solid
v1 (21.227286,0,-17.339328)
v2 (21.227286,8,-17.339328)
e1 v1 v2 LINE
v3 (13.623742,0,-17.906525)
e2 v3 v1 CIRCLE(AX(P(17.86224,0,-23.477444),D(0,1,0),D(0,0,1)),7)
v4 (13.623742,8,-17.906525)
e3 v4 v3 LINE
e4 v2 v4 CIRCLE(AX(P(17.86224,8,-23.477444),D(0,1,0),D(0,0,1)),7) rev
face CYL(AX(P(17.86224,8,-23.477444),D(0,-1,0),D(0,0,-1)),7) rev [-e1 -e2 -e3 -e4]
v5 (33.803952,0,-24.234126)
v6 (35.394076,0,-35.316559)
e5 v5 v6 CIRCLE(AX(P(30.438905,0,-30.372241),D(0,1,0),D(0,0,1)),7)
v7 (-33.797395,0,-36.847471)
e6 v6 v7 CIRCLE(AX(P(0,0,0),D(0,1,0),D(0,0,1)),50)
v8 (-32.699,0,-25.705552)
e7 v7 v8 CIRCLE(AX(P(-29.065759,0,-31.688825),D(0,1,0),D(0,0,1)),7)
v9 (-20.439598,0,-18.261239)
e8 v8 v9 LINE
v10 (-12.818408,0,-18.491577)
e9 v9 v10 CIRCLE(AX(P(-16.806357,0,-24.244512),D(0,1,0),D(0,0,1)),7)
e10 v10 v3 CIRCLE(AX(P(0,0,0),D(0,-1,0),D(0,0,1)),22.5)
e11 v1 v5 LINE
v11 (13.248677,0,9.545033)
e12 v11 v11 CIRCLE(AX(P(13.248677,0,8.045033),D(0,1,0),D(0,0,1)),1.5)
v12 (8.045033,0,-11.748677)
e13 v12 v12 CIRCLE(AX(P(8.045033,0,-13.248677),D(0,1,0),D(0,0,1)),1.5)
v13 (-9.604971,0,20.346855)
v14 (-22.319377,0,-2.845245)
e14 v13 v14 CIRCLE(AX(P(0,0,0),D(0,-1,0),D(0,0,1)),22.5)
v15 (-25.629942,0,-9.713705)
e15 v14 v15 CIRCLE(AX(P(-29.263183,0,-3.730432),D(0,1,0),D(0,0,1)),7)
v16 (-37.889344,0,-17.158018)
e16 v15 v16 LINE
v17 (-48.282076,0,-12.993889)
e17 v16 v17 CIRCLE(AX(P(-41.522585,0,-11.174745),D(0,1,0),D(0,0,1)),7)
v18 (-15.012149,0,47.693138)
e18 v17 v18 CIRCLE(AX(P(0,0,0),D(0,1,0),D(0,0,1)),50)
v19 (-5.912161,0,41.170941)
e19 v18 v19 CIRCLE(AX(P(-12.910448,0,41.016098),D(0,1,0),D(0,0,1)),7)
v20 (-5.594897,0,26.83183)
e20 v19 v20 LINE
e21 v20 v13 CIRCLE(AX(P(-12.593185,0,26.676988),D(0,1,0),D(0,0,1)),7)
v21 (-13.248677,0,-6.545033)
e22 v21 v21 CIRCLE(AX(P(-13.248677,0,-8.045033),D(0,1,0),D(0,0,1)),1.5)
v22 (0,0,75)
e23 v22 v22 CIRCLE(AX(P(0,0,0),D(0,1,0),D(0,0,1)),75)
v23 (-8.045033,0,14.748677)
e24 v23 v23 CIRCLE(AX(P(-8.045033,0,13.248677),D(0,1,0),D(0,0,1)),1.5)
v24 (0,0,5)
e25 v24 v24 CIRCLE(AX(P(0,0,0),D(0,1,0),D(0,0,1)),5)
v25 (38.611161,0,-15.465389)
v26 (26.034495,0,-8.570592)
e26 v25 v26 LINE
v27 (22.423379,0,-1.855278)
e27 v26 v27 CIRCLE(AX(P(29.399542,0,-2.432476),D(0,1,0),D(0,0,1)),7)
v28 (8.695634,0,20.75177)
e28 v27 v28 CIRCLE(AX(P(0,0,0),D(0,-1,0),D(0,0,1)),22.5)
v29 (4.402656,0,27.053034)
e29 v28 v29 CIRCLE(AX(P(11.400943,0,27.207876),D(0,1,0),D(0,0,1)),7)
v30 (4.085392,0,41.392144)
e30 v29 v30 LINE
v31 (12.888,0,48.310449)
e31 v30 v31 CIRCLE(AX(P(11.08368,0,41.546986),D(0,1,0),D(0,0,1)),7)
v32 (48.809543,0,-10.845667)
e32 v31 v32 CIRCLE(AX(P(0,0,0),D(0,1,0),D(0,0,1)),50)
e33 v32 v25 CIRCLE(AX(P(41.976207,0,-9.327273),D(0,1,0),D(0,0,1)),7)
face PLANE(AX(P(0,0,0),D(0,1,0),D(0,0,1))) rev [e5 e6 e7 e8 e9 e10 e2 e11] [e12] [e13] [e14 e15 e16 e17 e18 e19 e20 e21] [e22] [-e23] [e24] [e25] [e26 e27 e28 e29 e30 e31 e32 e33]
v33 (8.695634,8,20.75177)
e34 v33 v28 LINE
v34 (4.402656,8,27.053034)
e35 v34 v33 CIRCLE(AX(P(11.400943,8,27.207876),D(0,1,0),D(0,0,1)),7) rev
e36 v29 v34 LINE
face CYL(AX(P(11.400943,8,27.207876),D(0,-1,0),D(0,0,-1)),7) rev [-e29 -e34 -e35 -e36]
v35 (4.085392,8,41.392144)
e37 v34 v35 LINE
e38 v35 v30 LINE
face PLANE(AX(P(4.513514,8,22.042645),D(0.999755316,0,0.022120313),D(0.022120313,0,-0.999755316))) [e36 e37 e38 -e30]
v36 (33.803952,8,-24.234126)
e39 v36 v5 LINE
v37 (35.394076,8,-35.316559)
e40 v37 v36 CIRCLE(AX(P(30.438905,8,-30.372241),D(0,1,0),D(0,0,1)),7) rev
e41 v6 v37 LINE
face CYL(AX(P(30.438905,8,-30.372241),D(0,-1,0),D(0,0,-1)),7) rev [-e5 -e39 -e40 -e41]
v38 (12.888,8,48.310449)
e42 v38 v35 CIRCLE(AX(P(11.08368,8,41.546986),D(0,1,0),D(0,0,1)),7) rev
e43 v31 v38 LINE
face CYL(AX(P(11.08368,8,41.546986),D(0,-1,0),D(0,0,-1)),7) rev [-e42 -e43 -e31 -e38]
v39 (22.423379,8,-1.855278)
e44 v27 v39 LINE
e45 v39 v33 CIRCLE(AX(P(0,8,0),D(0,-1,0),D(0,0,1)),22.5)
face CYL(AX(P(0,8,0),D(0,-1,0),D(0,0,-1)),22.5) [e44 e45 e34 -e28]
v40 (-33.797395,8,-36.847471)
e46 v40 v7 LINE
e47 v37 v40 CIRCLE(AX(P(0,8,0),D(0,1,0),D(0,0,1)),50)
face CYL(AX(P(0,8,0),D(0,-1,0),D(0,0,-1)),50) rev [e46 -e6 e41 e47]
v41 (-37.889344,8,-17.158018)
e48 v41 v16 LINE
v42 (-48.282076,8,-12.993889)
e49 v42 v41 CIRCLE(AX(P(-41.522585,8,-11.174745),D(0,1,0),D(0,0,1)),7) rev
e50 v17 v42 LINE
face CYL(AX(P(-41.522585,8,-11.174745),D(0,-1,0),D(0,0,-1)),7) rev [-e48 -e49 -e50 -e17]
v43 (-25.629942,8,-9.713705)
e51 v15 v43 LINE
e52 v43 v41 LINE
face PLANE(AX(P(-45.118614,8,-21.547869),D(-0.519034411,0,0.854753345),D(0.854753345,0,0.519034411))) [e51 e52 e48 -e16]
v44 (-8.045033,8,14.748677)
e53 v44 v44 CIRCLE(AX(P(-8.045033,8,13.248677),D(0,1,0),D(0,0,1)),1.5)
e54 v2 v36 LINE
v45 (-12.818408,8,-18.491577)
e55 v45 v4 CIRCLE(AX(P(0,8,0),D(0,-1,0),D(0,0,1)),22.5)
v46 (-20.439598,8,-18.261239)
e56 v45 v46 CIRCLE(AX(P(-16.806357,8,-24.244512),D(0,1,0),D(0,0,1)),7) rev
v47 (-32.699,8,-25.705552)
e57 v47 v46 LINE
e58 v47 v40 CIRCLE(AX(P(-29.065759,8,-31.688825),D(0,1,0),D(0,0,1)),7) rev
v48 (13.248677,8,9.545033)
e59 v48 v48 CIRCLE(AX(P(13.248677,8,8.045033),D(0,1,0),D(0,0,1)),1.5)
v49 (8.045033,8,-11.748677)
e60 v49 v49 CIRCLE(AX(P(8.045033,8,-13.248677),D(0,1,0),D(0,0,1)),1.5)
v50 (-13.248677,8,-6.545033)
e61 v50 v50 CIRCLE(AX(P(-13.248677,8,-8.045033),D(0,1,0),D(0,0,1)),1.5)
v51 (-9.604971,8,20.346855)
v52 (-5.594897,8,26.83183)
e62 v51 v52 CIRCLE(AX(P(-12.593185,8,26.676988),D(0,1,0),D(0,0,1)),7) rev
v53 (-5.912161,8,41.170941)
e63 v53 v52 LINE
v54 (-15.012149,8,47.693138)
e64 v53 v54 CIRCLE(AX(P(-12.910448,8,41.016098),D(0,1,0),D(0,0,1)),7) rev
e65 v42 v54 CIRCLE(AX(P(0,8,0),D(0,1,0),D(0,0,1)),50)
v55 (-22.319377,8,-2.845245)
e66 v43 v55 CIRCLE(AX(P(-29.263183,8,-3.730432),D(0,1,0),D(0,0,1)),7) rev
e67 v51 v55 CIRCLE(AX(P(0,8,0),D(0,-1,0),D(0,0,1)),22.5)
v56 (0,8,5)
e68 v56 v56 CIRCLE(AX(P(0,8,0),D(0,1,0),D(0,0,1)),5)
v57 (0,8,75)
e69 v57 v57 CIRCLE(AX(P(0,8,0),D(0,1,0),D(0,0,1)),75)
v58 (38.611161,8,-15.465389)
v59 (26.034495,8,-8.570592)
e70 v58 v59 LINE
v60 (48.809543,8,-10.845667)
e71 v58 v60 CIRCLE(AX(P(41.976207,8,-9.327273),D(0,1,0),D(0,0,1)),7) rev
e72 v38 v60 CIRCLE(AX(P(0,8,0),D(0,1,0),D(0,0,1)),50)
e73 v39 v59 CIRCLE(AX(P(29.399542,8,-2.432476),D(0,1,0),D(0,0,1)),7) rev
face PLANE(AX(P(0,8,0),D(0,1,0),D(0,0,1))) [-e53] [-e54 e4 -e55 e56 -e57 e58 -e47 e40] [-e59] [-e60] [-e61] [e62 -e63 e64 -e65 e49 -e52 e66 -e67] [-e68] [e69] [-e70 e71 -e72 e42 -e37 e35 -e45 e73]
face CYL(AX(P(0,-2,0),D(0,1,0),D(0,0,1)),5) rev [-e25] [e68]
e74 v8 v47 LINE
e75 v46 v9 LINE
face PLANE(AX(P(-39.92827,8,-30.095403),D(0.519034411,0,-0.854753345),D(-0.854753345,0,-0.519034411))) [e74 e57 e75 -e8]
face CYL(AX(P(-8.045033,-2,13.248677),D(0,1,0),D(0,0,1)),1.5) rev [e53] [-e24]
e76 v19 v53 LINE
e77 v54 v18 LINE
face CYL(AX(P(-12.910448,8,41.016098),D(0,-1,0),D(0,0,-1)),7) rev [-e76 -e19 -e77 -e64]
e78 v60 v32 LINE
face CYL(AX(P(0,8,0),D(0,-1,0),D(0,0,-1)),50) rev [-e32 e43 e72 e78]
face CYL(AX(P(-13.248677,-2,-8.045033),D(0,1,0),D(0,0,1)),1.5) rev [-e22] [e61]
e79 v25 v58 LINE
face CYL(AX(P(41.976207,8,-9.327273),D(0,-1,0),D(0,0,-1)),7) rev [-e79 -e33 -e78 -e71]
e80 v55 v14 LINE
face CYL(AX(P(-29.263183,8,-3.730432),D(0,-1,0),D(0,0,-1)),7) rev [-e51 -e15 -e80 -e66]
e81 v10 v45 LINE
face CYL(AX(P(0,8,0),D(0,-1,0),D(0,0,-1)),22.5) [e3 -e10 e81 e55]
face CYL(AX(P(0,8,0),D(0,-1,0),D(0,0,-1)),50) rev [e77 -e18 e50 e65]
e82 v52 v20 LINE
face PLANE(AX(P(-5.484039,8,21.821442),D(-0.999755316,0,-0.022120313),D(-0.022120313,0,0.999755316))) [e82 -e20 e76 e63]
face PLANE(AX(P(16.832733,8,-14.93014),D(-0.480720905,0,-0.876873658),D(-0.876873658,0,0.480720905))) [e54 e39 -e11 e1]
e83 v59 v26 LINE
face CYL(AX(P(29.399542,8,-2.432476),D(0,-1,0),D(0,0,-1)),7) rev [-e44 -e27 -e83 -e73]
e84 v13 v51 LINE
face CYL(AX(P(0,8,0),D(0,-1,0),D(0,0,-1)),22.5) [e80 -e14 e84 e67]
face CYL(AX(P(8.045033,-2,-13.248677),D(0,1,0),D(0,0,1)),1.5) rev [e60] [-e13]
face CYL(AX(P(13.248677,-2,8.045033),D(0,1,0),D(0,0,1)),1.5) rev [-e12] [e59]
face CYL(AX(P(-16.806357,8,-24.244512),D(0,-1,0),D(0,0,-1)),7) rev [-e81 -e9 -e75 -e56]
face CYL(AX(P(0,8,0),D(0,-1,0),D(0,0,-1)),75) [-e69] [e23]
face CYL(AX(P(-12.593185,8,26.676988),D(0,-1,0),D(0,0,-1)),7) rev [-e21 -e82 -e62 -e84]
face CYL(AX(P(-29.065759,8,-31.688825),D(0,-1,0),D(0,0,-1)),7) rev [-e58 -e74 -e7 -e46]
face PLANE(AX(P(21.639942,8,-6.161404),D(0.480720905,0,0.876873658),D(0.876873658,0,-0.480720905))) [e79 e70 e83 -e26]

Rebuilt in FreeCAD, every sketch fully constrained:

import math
import FreeCAD as App
import Part
import Sketcher

V = App.Vector


def edges_at(feature, points):
    """Names of the edges that pass closest to the given points."""
    edges = feature.Shape.Edges
    near = lambda p: min(range(len(edges)), key=lambda i: edges[i].distToShape(Part.Vertex(*p))[0])
    return sorted({f"Edge{near(p) + 1}" for p in points})

doc = App.newDocument("Part")
params = doc.addObject("Spreadsheet::Sheet", "Params")
for row, (alias, value) in enumerate([
    ("sketch1_diameter", "150 mm"),
    ("sketch1_radius", "50 mm"),
    ("sketch1_radius2", "22.5 mm"),
    ("pad1_length", "8 mm"),
    ("fillet_radius", "7 mm"),
    ("fillet2_radius", "7 mm"),
    ("fillet3_radius", "7 mm"),
    ("sketch2_diameter", "10 mm"),
    ("pocket1_length", "10 mm"),
    ("sketch3_diameter", "3 mm"),
    ("pocket2_length", "10 mm"),
    ("fillet4_radius", "7 mm"),
], start=1):
    params.set(f"A{row}", alias)
    params.set(f"B{row}", "=" + value)
    params.setAlias(f"B{row}", alias)

body = doc.addObject("PartDesign::Body", "Body")

# Sketch on XZ plane
sketch1 = body.newObject("Sketcher::SketchObject", "Sketch")
sketch1.AttachmentSupport = (doc.getObject("XZ_Plane"), [""])
sketch1.MapMode = "FlatFace"
sketch1.addGeometry(Part.Circle(V(0, 0, 0), V(0, 0, 1), 75), False)
sketch1.addGeometry(Part.ArcOfCircle(Part.Circle(V(0, 0, 0), V(0, 0, 1), 22.5), math.radians(104.107092), math.radians(198.427916)), False)
sketch1.addGeometry(Part.LineSegment(V(-5.484039, 21.821442, 0), V(-6.099248, 49.626597, 0)), False)
sketch1.addGeometry(Part.ArcOfCircle(Part.Circle(V(0, 0, 0), V(0, 0, 1), 50), math.radians(97.006674), math.radians(205.528333)), False)
sketch1.addGeometry(Part.LineSegment(V(-45.118614, -21.547869, 0), V(-21.346247, -7.112504, 0)), False)
sketch1.addGeometry(Part.LineSegment(V(-16.155903, -15.660038, 0), V(-39.92827, -30.095403, 0)), False)
sketch1.addGeometry(Part.ArcOfCircle(Part.Circle(V(0, 0, 0), V(0, 0, 1), 50), math.radians(-142.993326), math.radians(-34.471667)), False)
sketch1.addGeometry(Part.LineSegment(V(41.220309, -28.299931, 0), V(16.832733, -14.93014, 0)), False)
sketch1.addGeometry(Part.ArcOfCircle(Part.Circle(V(0, 0, 0), V(0, 0, 1), 22.5), math.radians(-135.892908), math.radians(-41.572084)), False)
sketch1.addGeometry(Part.LineSegment(V(3.898305, 49.847801, 0), V(4.513514, 22.042645, 0)), False)
sketch1.addGeometry(Part.ArcOfCircle(Part.Circle(V(0, 0, 0), V(0, 0, 1), 22.5), math.radians(-15.892908), math.radians(78.427916)), False)
sketch1.addGeometry(Part.LineSegment(V(21.639942, -6.161404, 0), V(46.027518, -19.531195, 0)), False)
sketch1.addGeometry(Part.ArcOfCircle(Part.Circle(V(0, 0, 0), V(0, 0, 1), 50), math.radians(-22.993326), math.radians(85.528333)), False)
sketch1.addConstraint(Sketcher.Constraint("Coincident", 1, 1, 2, 1))
sketch1.addConstraint(Sketcher.Constraint("Coincident", 2, 2, 3, 1))
sketch1.addConstraint(Sketcher.Constraint("Coincident", 3, 2, 4, 1))
sketch1.addConstraint(Sketcher.Constraint("Coincident", 4, 2, 1, 2))
sketch1.addConstraint(Sketcher.Constraint("Coincident", 5, 2, 6, 1))
sketch1.addConstraint(Sketcher.Constraint("Coincident", 6, 2, 7, 1))
sketch1.addConstraint(Sketcher.Constraint("Coincident", 7, 2, 8, 2))
sketch1.addConstraint(Sketcher.Constraint("Coincident", 8, 1, 5, 1))
sketch1.addConstraint(Sketcher.Constraint("Coincident", 9, 2, 10, 2))
sketch1.addConstraint(Sketcher.Constraint("Coincident", 10, 1, 11, 1))
sketch1.addConstraint(Sketcher.Constraint("Coincident", 11, 2, 12, 1))
sketch1.addConstraint(Sketcher.Constraint("Coincident", 12, 2, 9, 1))
sketch1.addConstraint(Sketcher.Constraint("Coincident", 0, 3, -1, 1))
sketch1.addConstraint(Sketcher.Constraint("Coincident", 1, 3, -1, 1))
sketch1.addConstraint(Sketcher.Constraint("Coincident", 3, 3, -1, 1))
sketch1.addConstraint(Sketcher.Constraint("Coincident", 6, 3, -1, 1))
sketch1.addConstraint(Sketcher.Constraint("Coincident", 8, 3, -1, 1))
sketch1.addConstraint(Sketcher.Constraint("Coincident", 10, 3, -1, 1))
sketch1.addConstraint(Sketcher.Constraint("Coincident", 12, 3, -1, 1))
sketch1.addConstraint(Sketcher.Constraint("Equal", 3, 6))
sketch1.addConstraint(Sketcher.Constraint("Equal", 1, 8))
sketch1.addConstraint(Sketcher.Constraint("Equal", 8, 10))
sketch1.addConstraint(Sketcher.Constraint("Equal", 6, 12))
sketch1.addConstraint(Sketcher.Constraint("Parallel", 4, 5))
sketch1.addConstraint(Sketcher.Constraint("Parallel", 2, 9))
sketch1.addConstraint(Sketcher.Constraint("Parallel", 7, 11))
sketch1.addConstraint(Sketcher.Constraint("Equal", 2, 4))
sketch1.addConstraint(Sketcher.Constraint("Equal", 4, 5))
sketch1.addConstraint(Sketcher.Constraint("Equal", 5, 7))
sketch1.addConstraint(Sketcher.Constraint("Equal", 7, 9))
sketch1.addConstraint(Sketcher.Constraint("Equal", 9, 11))
sketch1.addConstraint(Sketcher.Constraint("Diameter", 0, 150.0))
sketch1.addConstraint(Sketcher.Constraint("Radius", 3, 50.0))
sketch1.addConstraint(Sketcher.Constraint("Radius", 1, 22.5))
sketch1.addConstraint(Sketcher.Constraint("DistanceY", -1, 1, 12, 2, 49.847801))
sketch1.addConstraint(Sketcher.Constraint("DistanceY", 5, 2, 4, 2, 22.982898))
sketch1.addConstraint(Sketcher.Constraint("Distance", 2, 27.811961))
sketch1.addConstraint(Sketcher.Constraint("DistanceX", -1, 1, 6, 2, 41.220309))
sketch1.setExpression("Constraints[31]", "Params.sketch1_diameter")
sketch1.setExpression("Constraints[32]", "Params.sketch1_radius")
sketch1.setExpression("Constraints[33]", "Params.sketch1_radius2")
pad1 = body.newObject("PartDesign::Pad", "Pad")
pad1.Profile = sketch1
pad1.setExpression("Length", "Params.pad1_length")
pad1.Reversed = True
doc.recompute()

fillet = body.newObject("PartDesign::Fillet", "Fillet")
fillet.Base = (pad1, edges_at(pad1, [(41.22, 4, -28.3)]))
fillet.setExpression("Radius", "Params.fillet_radius")
doc.recompute()

fillet2 = body.newObject("PartDesign::Fillet", "Fillet001")
fillet2.Base = (fillet, edges_at(fillet, [(-39.928, 4, -30.095)]))
fillet2.setExpression("Radius", "Params.fillet2_radius")
doc.recompute()

fillet3 = body.newObject("PartDesign::Fillet", "Fillet002")
fillet3.Base = (fillet2, edges_at(fillet2, [
    (3.898, 4, 49.848),
    (46.028, 4, -19.531),
    (-45.119, 4, -21.548),
    (-6.099, 4, 49.627),
]))
fillet3.setExpression("Radius", "Params.fillet3_radius")

# Sketch on XZ plane
sketch2 = body.newObject("Sketcher::SketchObject", "Sketch001")
sketch2.AttachmentSupport = (doc.getObject("XZ_Plane"), [""])
sketch2.MapMode = "FlatFace"
sketch2.AttachmentOffset = App.Placement(V(0, 0, -8), App.Rotation())
sketch2.addGeometry(Part.Circle(V(0, 0, 0), V(0, 0, 1), 5), False)
sketch2.addConstraint(Sketcher.Constraint("Coincident", 0, 3, -1, 1))
sketch2.addConstraint(Sketcher.Constraint("Diameter", 0, 10.0))
sketch2.setExpression("Constraints[1]", "Params.sketch2_diameter")
pocket1 = body.newObject("PartDesign::Pocket", "Pocket")
pocket1.Profile = sketch2
pocket1.setExpression("Length", "Params.pocket1_length")
pocket1.Reversed = True

# Sketch on XZ plane
sketch3 = body.newObject("Sketcher::SketchObject", "Sketch002")
sketch3.AttachmentSupport = (doc.getObject("XZ_Plane"), [""])
sketch3.MapMode = "FlatFace"
sketch3.AttachmentOffset = App.Placement(V(0, 0, -8), App.Rotation())
sketch3.addGeometry(Part.Circle(V(-13.248677, -8.045033, 0), V(0, 0, 1), 1.5), False)
sketch3.addGeometry(Part.Circle(V(8.045033, -13.248677, 0), V(0, 0, 1), 1.5), False)
sketch3.addGeometry(Part.Circle(V(13.248677, 8.045033, 0), V(0, 0, 1), 1.5), False)
sketch3.addGeometry(Part.Circle(V(-8.045033, 13.248677, 0), V(0, 0, 1), 1.5), False)
sketch3.addConstraint(Sketcher.Constraint("Equal", 0, 1))
sketch3.addConstraint(Sketcher.Constraint("Equal", 1, 2))
sketch3.addConstraint(Sketcher.Constraint("Equal", 2, 3))
sketch3.addConstraint(Sketcher.Constraint("Symmetric", 0, 3, 2, 3, -1, 1))
sketch3.addConstraint(Sketcher.Constraint("Symmetric", 1, 3, 3, 3, -1, 1))
sketch3.addConstraint(Sketcher.Constraint("Diameter", 0, 3.0))
sketch3.addConstraint(Sketcher.Constraint("DistanceX", 0, 3, 1, 3, 21.29371))
sketch3.addConstraint(Sketcher.Constraint("DistanceY", 1, 3, 2, 3, 21.29371))
sketch3.addConstraint(Sketcher.Constraint("DistanceX", 0, 3, -1, 1, 13.248677))
sketch3.addConstraint(Sketcher.Constraint("DistanceY", 0, 3, -1, 1, 8.045033))
sketch3.setExpression("Constraints[5]", "Params.sketch3_diameter")
pocket2 = body.newObject("PartDesign::Pocket", "Pocket001")
pocket2.Profile = sketch3
pocket2.setExpression("Length", "Params.pocket2_length")
pocket2.Reversed = True
doc.recompute()

fillet4 = body.newObject("PartDesign::Fillet", "Fillet003")
fillet4.Base = (pocket2, edges_at(pocket2, [
    (-16.156, 4, -15.66),
    (16.833, 4, -14.93),
    (21.64, 4, -6.161),
    (4.514, 4, 22.043),
    (-5.484, 4, 21.821),
    (-21.346, 4, -7.113),
]))
fillet4.setExpression("Radius", "Params.fillet4_radius")

doc.recompute()
